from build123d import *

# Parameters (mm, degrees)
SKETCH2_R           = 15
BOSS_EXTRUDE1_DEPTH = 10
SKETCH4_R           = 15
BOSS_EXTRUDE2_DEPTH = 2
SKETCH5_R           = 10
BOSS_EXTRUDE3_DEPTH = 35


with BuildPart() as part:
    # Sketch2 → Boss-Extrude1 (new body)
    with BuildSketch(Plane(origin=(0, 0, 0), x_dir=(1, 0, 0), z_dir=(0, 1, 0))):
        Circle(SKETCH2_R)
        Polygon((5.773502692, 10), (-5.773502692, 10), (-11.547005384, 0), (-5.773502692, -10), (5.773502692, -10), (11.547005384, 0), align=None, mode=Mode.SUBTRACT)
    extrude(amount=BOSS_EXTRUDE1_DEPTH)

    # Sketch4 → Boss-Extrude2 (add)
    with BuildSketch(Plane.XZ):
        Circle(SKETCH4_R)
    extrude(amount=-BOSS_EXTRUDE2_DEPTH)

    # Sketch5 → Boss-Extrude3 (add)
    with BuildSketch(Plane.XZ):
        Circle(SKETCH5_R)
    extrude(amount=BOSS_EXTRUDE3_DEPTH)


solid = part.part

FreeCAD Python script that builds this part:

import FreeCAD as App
import Part
import Sketcher

V = App.Vector
Q = App.Units.Quantity


def add_polygon(sketch, points):
    """Adds a closed chain of lines whose ends are joined by coincident constraints."""
    first, n = sketch.GeometryCount, len(points)
    for a, b in zip(points, points[1:] + points[:1]):
        sketch.addGeometry(Part.LineSegment(App.Vector(*a, 0), App.Vector(*b, 0)), False)
    for i in range(n):
        sketch.addConstraint(Sketcher.Constraint("Coincident", first + i, 2, first + (i + 1) % n, 1))

doc = App.newDocument("Part")
params = doc.addObject("Spreadsheet::Sheet", "Params")
for row, (alias, value) in enumerate([
    ("sketch1_diameter", "30 mm"),
    ("pad1_length", "10 mm"),
    ("sketch2_diameter", "30 mm"),
    ("pad2_length", "2 mm"),
    ("sketch3_diameter", "20 mm"),
    ("pad3_length", "35 mm"),
], start=1):
    params.set(f"A{row}", alias)
    params.set(f"B{row}", "=" + value)
    params.setAlias(f"B{row}", alias)

body = doc.addObject("PartDesign::Body", "Body")

sketch1 = body.newObject("Sketcher::SketchObject", "Sketch")
sketch1.AttachmentSupport = (doc.getObject("XZ_Plane"), [""])
sketch1.MapMode = "FlatFace"
sketch1.addGeometry(Part.Circle(V(0, 0, 0), V(0, 0, 1), 15), False)
add_polygon(sketch1, [(-6, -10), (6, -10), (12, 0), (6, 10), (-6, 10), (-12, 0)])
sketch1.addConstraint([
    Sketcher.Constraint("Horizontal", 1),
    Sketcher.Constraint("Horizontal", 4),
    Sketcher.Constraint("Coincident", 0, 3, -1, 1),
    Sketcher.Constraint("Symmetric", 1, 2, 4, 2, -1, 1),
    Sketcher.Constraint("Symmetric", 2, 2, 5, 2, -1, 1),
    Sketcher.Constraint("PointOnObject", 2, 2, -1),
    Sketcher.Constraint("Parallel", 3, 6),
    Sketcher.Constraint("Vertical", 1, 2, 3, 2),
    Sketcher.Constraint("Diameter", 0, Q("30 mm")),
    Sketcher.Constraint("Angle", 2, Q("60 deg")),
    Sketcher.Constraint("DistanceY", 1, 2, -1, 1, Q("10 mm")),
    Sketcher.Constraint("DistanceX", 1, 1, 1, 2, Q("11.547005 mm")),
])
sketch1.setExpression("Constraints[14]", "Params.sketch1_diameter")
pad1 = body.newObject("PartDesign::Pad", "Pad")
pad1.Profile = sketch1
pad1.setExpression("Length", "Params.pad1_length")
pad1.Reversed = True

sketch2 = body.newObject("Sketcher::SketchObject", "Sketch001")
sketch2.AttachmentSupport = (doc.getObject("XZ_Plane"), [""])
sketch2.MapMode = "FlatFace"
sketch2.addGeometry(Part.Circle(V(0, 0, 0), V(0, 0, 1), 15), False)
sketch2.addConstraint([
    Sketcher.Constraint("Coincident", 0, 3, -1, 1),
    Sketcher.Constraint("Diameter", 0, Q("30 mm")),
])
sketch2.setExpression("Constraints[1]", "Params.sketch2_diameter")
pad2 = body.newObject("PartDesign::Pad", "Pad001")
pad2.Profile = sketch2
pad2.setExpression("Length", "Params.pad2_length")
pad2.Reversed = True

sketch3 = body.newObject("Sketcher::SketchObject", "Sketch002")
sketch3.AttachmentSupport = (doc.getObject("XZ_Plane"), [""])
sketch3.MapMode = "FlatFace"
sketch3.addGeometry(Part.Circle(V(0, 0, 0), V(0, 0, 1), 10), False)
sketch3.addConstraint([
    Sketcher.Constraint("Coincident", 0, 3, -1, 1),
    Sketcher.Constraint("Diameter", 0, Q("20 mm")),
])
sketch3.setExpression("Constraints[1]", "Params.sketch3_diameter")
pad3 = body.newObject("PartDesign::Pad", "Pad002")
pad3.Profile = sketch3
pad3.setExpression("Length", "Params.pad3_length")

doc.recompute()
